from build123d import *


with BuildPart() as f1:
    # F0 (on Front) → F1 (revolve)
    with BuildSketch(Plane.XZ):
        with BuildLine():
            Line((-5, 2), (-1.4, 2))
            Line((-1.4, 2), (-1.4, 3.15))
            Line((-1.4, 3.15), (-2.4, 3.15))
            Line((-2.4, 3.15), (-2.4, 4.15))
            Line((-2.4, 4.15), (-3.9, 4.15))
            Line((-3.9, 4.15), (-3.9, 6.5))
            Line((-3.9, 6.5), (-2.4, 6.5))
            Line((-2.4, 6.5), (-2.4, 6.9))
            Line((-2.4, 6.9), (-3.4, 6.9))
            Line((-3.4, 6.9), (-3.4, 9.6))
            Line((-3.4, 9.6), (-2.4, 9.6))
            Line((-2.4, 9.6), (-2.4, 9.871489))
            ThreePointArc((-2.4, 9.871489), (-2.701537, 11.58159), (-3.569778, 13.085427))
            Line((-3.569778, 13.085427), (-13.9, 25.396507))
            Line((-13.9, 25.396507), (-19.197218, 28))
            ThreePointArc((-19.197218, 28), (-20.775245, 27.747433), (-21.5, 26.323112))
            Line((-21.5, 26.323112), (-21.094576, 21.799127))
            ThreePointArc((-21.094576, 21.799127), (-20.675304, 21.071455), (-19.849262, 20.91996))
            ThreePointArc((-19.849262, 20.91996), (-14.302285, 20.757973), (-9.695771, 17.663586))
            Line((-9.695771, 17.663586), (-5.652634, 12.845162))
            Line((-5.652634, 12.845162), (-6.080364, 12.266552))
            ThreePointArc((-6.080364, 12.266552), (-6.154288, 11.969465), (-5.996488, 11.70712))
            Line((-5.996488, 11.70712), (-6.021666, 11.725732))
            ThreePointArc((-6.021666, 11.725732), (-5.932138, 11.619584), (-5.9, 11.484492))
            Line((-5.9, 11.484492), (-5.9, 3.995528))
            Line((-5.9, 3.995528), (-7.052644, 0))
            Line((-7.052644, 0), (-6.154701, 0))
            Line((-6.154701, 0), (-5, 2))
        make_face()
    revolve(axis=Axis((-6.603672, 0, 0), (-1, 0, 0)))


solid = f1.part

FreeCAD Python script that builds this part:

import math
import FreeCAD as App
import Part
import Sketcher
Q = App.Units.Quantity

doc = App.newDocument("Part")
body = doc.addObject("PartDesign::Body", "Body")

# Sketch on XZ plane
sketch1 = body.newObject("Sketcher::SketchObject", "Sketch")
sketch1.AttachmentSupport = (doc.getObject("XZ_Plane"), [""])
sketch1.MapMode = "FlatFace"
sketch1.addGeometry([
    Part.LineSegment(App.Vector(-5, 2, 0), App.Vector(-1.4, 2, 0)),  # 0
    Part.LineSegment(App.Vector(-1.4, 2, 0), App.Vector(-1.4, 3.15, 0)),  # 1
    Part.LineSegment(App.Vector(-1.4, 3.15, 0), App.Vector(-2.4, 3.15, 0)),  # 2
    Part.LineSegment(App.Vector(-2.4, 3.15, 0), App.Vector(-2.4, 4.15, 0)),  # 3
    Part.LineSegment(App.Vector(-2.4, 4.15, 0), App.Vector(-3.9, 4.15, 0)),  # 4
    Part.LineSegment(App.Vector(-3.9, 4.15, 0), App.Vector(-3.9, 6.5, 0)),  # 5
    Part.LineSegment(App.Vector(-3.9, 6.5, 0), App.Vector(-2.4, 6.5, 0)),  # 6
    Part.LineSegment(App.Vector(-2.4, 6.5, 0), App.Vector(-2.4, 6.9, 0)),  # 7
    Part.LineSegment(App.Vector(-2.4, 6.9, 0), App.Vector(-3.4, 6.9, 0)),  # 8
    Part.LineSegment(App.Vector(-3.4, 6.9, 0), App.Vector(-3.4, 9.6, 0)),  # 9
    Part.LineSegment(App.Vector(-3.4, 9.6, 0), App.Vector(-2.4, 9.6, 0)),  # 10
    Part.LineSegment(App.Vector(-2.4, 9.6, 0), App.Vector(-2.4, 9.871489, 0)),  # 11
    Part.ArcOfCircle(Part.Circle(App.Vector(-7.399998, 9.871489, 0), App.Vector(0, 0, 1), 4.999998), math.radians(-0.000003), math.radians(40.000011)),  # 12
    Part.LineSegment(App.Vector(-3.569778, 13.085427, 0), App.Vector(-13.9, 25.396507, 0)),  # 13
    Part.LineSegment(App.Vector(-13.9, 25.396507, 0), App.Vector(-19.197218, 28, 0)),  # 14
    Part.ArcOfCircle(Part.Circle(App.Vector(-19.738054, 26.323112, 0), App.Vector(0, 0, 1), 1.761946), math.radians(72.12427), math.radians(180.000014)),  # 15
    Part.LineSegment(App.Vector(-21.5, 26.323112, 0), App.Vector(-21.094576, 21.799127, 0)),  # 16
    Part.ArcOfCircle(Part.Circle(App.Vector(-20.098567, 21.888385, 0), App.Vector(0, 0, 1), 1), math.radians(-174.879054), math.radians(-75.563614)),  # 17
    Part.ArcOfCircle(Part.Circle(App.Vector(-17.356215, 11.235708, 0), App.Vector(0, 0, 1), 10.000001), math.radians(40.000009), math.radians(104.43637)),  # 18
    Part.LineSegment(App.Vector(-9.695771, 17.663586, 0), App.Vector(-5.652634, 12.845162, 0)),  # 19
    Part.LineSegment(App.Vector(-5.652634, 12.845162, 0), App.Vector(-6.080364, 12.266552, 0)),  # 20
    Part.ArcOfCircle(Part.Circle(App.Vector(-5.758709, 12.028774, 0), App.Vector(0, 0, 1), 0.4), math.radians(143.526949), math.radians(233.526809)),  # 21
    Part.LineSegment(App.Vector(-5.996488, 11.70712, 0), App.Vector(-6.021666, 11.725732, 0)),  # 22
    Part.ArcOfCircle(Part.Circle(App.Vector(-6.199999, 11.484492, 0), App.Vector(0, 0, 1), 0.299999), math.radians(0.000047), math.radians(53.526854)),  # 23
    Part.LineSegment(App.Vector(-5.9, 11.484492, 0), App.Vector(-5.9, 3.995528, 0)),  # 24
    Part.LineSegment(App.Vector(-5.9, 3.995528, 0), App.Vector(-7.052644, 0, 0)),  # 25
    Part.LineSegment(App.Vector(-7.052644, 0, 0), App.Vector(-6.154701, 0, 0)),  # 26
    Part.LineSegment(App.Vector(-6.154701, 0, 0), App.Vector(-5, 2, 0)),  # 27
], False)
sketch1.addConstraint([
    Sketcher.Constraint("Coincident", 0, 2, 1, 1),
    Sketcher.Constraint("Coincident", 1, 2, 2, 1),
    Sketcher.Constraint("Coincident", 2, 2, 3, 1),
    Sketcher.Constraint("Coincident", 3, 2, 4, 1),
    Sketcher.Constraint("Coincident", 4, 2, 5, 1),
    Sketcher.Constraint("Coincident", 5, 2, 6, 1),
    Sketcher.Constraint("Coincident", 6, 2, 7, 1),
    Sketcher.Constraint("Coincident", 7, 2, 8, 1),
    Sketcher.Constraint("Coincident", 8, 2, 9, 1),
    Sketcher.Constraint("Coincident", 9, 2, 10, 1),
    Sketcher.Constraint("Coincident", 10, 2, 11, 1),
    Sketcher.Constraint("Tangent", 11, 2, 12, 1),
    Sketcher.Constraint("Tangent", 12, 2, 13, 1),
    Sketcher.Constraint("Coincident", 13, 2, 14, 1),
    Sketcher.Constraint("Coincident", 14, 2, 15, 1),
    Sketcher.Constraint("Coincident", 15, 2, 16, 1),
    Sketcher.Constraint("Tangent", 16, 2, 17, 1),
    Sketcher.Constraint("Tangent", 17, 2, 18, 2),
    Sketcher.Constraint("Tangent", 18, 1, 19, 1),
    Sketcher.Constraint("Coincident", 19, 2, 20, 1),
    Sketcher.Constraint("Coincident", 20, 2, 21, 1),
    Sketcher.Constraint("Coincident", 21, 2, 22, 1),
    Sketcher.Constraint("Coincident", 22, 2, 23, 2),
    Sketcher.Constraint("Tangent", 23, 1, 24, 1),
    Sketcher.Constraint("Coincident", 24, 2, 25, 1),
    Sketcher.Constraint("Coincident", 25, 2, 26, 1),
    Sketcher.Constraint("Coincident", 26, 2, 27, 1),
    Sketcher.Constraint("Coincident", 27, 2, 0, 1),
    Sketcher.Constraint("Horizontal", 0),
    Sketcher.Constraint("Vertical", 1),
    Sketcher.Constraint("Horizontal", 2),
    Sketcher.Constraint("Vertical", 3),
    Sketcher.Constraint("Horizontal", 4),
    Sketcher.Constraint("Vertical", 5),
    Sketcher.Constraint("Horizontal", 6),
    Sketcher.Constraint("Vertical", 7),
    Sketcher.Constraint("Horizontal", 8),
    Sketcher.Constraint("Vertical", 9),
    Sketcher.Constraint("Horizontal", 10),
    Sketcher.Constraint("Vertical", 11),
    Sketcher.Constraint("Vertical", 24),
    Sketcher.Constraint("Horizontal", 26),
    Sketcher.Constraint("PointOnObject", 25, 2, -1),
    Sketcher.Constraint("Parallel", 13, 19),
    Sketcher.Constraint("Vertical", 3, 2, 6, 2),
    Sketcher.Constraint("Vertical", 7, 2, 10, 2),
    Sketcher.Constraint("Equal", 2, 8),
    Sketcher.Constraint("Equal", 10, 3),
    Sketcher.Constraint("Radius", 12, Q("4.999998 mm")),
    Sketcher.Constraint("Radius", 17, Q("1 mm")),
    Sketcher.Constraint("Radius", 18, Q("10.000001 mm")),
    Sketcher.Constraint("Radius", 21, Q("0.4 mm")),
    Sketcher.Constraint("Radius", 23, Q("0.299999 mm")),
    Sketcher.Constraint("DistanceX", 2, 2, 2, 1, Q("1 mm")),
    Sketcher.Constraint("Angle", 13, Q("129.999998 deg")),
    Sketcher.Constraint("Angle", 27, Q("59.99999 deg")),
    Sketcher.Constraint("DistanceX", 0, 1, 0, 2, Q("3.6 mm")),
    Sketcher.Constraint("DistanceX", 4, 2, 4, 1, Q("1.5 mm")),
    Sketcher.Constraint("DistanceY", 7, 1, 7, 2, Q("0.4 mm")),
    Sketcher.Constraint("DistanceY", 9, 1, 9, 2, Q("2.7 mm")),
    Sketcher.Constraint("DistanceY", -1, 1, 0, 2, Q("2 mm")),
    Sketcher.Constraint("DistanceY", -1, 1, 14, 2, Q("28 mm")),
    Sketcher.Constraint("DistanceX", 27, 2, -1, 1, Q("5 mm")),
    Sketcher.Constraint("DistanceX", 24, 2, 4, 2, Q("2 mm")),
    Sketcher.Constraint("DistanceY", 1, 1, 1, 2, Q("1.15 mm")),
    Sketcher.Constraint("DistanceY", 5, 1, 5, 2, Q("2.35 mm")),
    Sketcher.Constraint("DistanceX", 13, 2, -1, 1, Q("13.9 mm")),
    Sketcher.Constraint("DistanceX", 15, 2, -1, 1, Q("21.5 mm")),
    Sketcher.Constraint("Radius", 15, Q("1.761946 mm")),
    Sketcher.Constraint("DistanceY", 11, 1, 11, 2, Q("0.271489 mm")),
    Sketcher.Constraint("DistanceY", 18, 3, 13, 2, Q("14.160799 mm")),
    Sketcher.Constraint("DistanceX", 20, 2, 22, 2, Q("0.058698 mm")),
    Sketcher.Constraint("Distance", 14, Q("5.902431 mm")),
    Sketcher.Constraint("Distance", 22, Q("0.03131 mm")),
    Sketcher.Constraint("DistanceX", 26, 1, 26, 2, Q("0.897943 mm")),
    Sketcher.Constraint("DistanceY", 24, 2, 24, 1, Q("7.488964 mm")),
    Sketcher.Constraint("DistanceX", 21, 3, -1, 1, Q("5.758709 mm")),
    Sketcher.Constraint("DistanceY", -1, 1, 23, 3, Q("11.484492 mm")),
    Sketcher.Constraint("DistanceY", -1, 1, 15, 2, Q("26.323112 mm")),
    Sketcher.Constraint("DistanceX", 17, 2, -1, 1, Q("19.849262 mm")),
    Sketcher.Constraint("DistanceY", -1, 1, 17, 2, Q("20.91996 mm")),
    Sketcher.Constraint("DistanceY", -1, 1, 21, 2, Q("11.70712 mm")),
    Sketcher.Constraint("DistanceY", 21, 3, 17, 3, Q("9.859611 mm")),
    Sketcher.Constraint("DistanceY", 23, 3, 19, 2, Q("1.36067 mm")),
])
revolution = body.newObject("PartDesign::Revolution", "Revolution")
revolution.Profile = sketch1
revolution.ReferenceAxis = (sketch1, ["H_Axis"])
revolution.Angle = 360

doc.recompute()
